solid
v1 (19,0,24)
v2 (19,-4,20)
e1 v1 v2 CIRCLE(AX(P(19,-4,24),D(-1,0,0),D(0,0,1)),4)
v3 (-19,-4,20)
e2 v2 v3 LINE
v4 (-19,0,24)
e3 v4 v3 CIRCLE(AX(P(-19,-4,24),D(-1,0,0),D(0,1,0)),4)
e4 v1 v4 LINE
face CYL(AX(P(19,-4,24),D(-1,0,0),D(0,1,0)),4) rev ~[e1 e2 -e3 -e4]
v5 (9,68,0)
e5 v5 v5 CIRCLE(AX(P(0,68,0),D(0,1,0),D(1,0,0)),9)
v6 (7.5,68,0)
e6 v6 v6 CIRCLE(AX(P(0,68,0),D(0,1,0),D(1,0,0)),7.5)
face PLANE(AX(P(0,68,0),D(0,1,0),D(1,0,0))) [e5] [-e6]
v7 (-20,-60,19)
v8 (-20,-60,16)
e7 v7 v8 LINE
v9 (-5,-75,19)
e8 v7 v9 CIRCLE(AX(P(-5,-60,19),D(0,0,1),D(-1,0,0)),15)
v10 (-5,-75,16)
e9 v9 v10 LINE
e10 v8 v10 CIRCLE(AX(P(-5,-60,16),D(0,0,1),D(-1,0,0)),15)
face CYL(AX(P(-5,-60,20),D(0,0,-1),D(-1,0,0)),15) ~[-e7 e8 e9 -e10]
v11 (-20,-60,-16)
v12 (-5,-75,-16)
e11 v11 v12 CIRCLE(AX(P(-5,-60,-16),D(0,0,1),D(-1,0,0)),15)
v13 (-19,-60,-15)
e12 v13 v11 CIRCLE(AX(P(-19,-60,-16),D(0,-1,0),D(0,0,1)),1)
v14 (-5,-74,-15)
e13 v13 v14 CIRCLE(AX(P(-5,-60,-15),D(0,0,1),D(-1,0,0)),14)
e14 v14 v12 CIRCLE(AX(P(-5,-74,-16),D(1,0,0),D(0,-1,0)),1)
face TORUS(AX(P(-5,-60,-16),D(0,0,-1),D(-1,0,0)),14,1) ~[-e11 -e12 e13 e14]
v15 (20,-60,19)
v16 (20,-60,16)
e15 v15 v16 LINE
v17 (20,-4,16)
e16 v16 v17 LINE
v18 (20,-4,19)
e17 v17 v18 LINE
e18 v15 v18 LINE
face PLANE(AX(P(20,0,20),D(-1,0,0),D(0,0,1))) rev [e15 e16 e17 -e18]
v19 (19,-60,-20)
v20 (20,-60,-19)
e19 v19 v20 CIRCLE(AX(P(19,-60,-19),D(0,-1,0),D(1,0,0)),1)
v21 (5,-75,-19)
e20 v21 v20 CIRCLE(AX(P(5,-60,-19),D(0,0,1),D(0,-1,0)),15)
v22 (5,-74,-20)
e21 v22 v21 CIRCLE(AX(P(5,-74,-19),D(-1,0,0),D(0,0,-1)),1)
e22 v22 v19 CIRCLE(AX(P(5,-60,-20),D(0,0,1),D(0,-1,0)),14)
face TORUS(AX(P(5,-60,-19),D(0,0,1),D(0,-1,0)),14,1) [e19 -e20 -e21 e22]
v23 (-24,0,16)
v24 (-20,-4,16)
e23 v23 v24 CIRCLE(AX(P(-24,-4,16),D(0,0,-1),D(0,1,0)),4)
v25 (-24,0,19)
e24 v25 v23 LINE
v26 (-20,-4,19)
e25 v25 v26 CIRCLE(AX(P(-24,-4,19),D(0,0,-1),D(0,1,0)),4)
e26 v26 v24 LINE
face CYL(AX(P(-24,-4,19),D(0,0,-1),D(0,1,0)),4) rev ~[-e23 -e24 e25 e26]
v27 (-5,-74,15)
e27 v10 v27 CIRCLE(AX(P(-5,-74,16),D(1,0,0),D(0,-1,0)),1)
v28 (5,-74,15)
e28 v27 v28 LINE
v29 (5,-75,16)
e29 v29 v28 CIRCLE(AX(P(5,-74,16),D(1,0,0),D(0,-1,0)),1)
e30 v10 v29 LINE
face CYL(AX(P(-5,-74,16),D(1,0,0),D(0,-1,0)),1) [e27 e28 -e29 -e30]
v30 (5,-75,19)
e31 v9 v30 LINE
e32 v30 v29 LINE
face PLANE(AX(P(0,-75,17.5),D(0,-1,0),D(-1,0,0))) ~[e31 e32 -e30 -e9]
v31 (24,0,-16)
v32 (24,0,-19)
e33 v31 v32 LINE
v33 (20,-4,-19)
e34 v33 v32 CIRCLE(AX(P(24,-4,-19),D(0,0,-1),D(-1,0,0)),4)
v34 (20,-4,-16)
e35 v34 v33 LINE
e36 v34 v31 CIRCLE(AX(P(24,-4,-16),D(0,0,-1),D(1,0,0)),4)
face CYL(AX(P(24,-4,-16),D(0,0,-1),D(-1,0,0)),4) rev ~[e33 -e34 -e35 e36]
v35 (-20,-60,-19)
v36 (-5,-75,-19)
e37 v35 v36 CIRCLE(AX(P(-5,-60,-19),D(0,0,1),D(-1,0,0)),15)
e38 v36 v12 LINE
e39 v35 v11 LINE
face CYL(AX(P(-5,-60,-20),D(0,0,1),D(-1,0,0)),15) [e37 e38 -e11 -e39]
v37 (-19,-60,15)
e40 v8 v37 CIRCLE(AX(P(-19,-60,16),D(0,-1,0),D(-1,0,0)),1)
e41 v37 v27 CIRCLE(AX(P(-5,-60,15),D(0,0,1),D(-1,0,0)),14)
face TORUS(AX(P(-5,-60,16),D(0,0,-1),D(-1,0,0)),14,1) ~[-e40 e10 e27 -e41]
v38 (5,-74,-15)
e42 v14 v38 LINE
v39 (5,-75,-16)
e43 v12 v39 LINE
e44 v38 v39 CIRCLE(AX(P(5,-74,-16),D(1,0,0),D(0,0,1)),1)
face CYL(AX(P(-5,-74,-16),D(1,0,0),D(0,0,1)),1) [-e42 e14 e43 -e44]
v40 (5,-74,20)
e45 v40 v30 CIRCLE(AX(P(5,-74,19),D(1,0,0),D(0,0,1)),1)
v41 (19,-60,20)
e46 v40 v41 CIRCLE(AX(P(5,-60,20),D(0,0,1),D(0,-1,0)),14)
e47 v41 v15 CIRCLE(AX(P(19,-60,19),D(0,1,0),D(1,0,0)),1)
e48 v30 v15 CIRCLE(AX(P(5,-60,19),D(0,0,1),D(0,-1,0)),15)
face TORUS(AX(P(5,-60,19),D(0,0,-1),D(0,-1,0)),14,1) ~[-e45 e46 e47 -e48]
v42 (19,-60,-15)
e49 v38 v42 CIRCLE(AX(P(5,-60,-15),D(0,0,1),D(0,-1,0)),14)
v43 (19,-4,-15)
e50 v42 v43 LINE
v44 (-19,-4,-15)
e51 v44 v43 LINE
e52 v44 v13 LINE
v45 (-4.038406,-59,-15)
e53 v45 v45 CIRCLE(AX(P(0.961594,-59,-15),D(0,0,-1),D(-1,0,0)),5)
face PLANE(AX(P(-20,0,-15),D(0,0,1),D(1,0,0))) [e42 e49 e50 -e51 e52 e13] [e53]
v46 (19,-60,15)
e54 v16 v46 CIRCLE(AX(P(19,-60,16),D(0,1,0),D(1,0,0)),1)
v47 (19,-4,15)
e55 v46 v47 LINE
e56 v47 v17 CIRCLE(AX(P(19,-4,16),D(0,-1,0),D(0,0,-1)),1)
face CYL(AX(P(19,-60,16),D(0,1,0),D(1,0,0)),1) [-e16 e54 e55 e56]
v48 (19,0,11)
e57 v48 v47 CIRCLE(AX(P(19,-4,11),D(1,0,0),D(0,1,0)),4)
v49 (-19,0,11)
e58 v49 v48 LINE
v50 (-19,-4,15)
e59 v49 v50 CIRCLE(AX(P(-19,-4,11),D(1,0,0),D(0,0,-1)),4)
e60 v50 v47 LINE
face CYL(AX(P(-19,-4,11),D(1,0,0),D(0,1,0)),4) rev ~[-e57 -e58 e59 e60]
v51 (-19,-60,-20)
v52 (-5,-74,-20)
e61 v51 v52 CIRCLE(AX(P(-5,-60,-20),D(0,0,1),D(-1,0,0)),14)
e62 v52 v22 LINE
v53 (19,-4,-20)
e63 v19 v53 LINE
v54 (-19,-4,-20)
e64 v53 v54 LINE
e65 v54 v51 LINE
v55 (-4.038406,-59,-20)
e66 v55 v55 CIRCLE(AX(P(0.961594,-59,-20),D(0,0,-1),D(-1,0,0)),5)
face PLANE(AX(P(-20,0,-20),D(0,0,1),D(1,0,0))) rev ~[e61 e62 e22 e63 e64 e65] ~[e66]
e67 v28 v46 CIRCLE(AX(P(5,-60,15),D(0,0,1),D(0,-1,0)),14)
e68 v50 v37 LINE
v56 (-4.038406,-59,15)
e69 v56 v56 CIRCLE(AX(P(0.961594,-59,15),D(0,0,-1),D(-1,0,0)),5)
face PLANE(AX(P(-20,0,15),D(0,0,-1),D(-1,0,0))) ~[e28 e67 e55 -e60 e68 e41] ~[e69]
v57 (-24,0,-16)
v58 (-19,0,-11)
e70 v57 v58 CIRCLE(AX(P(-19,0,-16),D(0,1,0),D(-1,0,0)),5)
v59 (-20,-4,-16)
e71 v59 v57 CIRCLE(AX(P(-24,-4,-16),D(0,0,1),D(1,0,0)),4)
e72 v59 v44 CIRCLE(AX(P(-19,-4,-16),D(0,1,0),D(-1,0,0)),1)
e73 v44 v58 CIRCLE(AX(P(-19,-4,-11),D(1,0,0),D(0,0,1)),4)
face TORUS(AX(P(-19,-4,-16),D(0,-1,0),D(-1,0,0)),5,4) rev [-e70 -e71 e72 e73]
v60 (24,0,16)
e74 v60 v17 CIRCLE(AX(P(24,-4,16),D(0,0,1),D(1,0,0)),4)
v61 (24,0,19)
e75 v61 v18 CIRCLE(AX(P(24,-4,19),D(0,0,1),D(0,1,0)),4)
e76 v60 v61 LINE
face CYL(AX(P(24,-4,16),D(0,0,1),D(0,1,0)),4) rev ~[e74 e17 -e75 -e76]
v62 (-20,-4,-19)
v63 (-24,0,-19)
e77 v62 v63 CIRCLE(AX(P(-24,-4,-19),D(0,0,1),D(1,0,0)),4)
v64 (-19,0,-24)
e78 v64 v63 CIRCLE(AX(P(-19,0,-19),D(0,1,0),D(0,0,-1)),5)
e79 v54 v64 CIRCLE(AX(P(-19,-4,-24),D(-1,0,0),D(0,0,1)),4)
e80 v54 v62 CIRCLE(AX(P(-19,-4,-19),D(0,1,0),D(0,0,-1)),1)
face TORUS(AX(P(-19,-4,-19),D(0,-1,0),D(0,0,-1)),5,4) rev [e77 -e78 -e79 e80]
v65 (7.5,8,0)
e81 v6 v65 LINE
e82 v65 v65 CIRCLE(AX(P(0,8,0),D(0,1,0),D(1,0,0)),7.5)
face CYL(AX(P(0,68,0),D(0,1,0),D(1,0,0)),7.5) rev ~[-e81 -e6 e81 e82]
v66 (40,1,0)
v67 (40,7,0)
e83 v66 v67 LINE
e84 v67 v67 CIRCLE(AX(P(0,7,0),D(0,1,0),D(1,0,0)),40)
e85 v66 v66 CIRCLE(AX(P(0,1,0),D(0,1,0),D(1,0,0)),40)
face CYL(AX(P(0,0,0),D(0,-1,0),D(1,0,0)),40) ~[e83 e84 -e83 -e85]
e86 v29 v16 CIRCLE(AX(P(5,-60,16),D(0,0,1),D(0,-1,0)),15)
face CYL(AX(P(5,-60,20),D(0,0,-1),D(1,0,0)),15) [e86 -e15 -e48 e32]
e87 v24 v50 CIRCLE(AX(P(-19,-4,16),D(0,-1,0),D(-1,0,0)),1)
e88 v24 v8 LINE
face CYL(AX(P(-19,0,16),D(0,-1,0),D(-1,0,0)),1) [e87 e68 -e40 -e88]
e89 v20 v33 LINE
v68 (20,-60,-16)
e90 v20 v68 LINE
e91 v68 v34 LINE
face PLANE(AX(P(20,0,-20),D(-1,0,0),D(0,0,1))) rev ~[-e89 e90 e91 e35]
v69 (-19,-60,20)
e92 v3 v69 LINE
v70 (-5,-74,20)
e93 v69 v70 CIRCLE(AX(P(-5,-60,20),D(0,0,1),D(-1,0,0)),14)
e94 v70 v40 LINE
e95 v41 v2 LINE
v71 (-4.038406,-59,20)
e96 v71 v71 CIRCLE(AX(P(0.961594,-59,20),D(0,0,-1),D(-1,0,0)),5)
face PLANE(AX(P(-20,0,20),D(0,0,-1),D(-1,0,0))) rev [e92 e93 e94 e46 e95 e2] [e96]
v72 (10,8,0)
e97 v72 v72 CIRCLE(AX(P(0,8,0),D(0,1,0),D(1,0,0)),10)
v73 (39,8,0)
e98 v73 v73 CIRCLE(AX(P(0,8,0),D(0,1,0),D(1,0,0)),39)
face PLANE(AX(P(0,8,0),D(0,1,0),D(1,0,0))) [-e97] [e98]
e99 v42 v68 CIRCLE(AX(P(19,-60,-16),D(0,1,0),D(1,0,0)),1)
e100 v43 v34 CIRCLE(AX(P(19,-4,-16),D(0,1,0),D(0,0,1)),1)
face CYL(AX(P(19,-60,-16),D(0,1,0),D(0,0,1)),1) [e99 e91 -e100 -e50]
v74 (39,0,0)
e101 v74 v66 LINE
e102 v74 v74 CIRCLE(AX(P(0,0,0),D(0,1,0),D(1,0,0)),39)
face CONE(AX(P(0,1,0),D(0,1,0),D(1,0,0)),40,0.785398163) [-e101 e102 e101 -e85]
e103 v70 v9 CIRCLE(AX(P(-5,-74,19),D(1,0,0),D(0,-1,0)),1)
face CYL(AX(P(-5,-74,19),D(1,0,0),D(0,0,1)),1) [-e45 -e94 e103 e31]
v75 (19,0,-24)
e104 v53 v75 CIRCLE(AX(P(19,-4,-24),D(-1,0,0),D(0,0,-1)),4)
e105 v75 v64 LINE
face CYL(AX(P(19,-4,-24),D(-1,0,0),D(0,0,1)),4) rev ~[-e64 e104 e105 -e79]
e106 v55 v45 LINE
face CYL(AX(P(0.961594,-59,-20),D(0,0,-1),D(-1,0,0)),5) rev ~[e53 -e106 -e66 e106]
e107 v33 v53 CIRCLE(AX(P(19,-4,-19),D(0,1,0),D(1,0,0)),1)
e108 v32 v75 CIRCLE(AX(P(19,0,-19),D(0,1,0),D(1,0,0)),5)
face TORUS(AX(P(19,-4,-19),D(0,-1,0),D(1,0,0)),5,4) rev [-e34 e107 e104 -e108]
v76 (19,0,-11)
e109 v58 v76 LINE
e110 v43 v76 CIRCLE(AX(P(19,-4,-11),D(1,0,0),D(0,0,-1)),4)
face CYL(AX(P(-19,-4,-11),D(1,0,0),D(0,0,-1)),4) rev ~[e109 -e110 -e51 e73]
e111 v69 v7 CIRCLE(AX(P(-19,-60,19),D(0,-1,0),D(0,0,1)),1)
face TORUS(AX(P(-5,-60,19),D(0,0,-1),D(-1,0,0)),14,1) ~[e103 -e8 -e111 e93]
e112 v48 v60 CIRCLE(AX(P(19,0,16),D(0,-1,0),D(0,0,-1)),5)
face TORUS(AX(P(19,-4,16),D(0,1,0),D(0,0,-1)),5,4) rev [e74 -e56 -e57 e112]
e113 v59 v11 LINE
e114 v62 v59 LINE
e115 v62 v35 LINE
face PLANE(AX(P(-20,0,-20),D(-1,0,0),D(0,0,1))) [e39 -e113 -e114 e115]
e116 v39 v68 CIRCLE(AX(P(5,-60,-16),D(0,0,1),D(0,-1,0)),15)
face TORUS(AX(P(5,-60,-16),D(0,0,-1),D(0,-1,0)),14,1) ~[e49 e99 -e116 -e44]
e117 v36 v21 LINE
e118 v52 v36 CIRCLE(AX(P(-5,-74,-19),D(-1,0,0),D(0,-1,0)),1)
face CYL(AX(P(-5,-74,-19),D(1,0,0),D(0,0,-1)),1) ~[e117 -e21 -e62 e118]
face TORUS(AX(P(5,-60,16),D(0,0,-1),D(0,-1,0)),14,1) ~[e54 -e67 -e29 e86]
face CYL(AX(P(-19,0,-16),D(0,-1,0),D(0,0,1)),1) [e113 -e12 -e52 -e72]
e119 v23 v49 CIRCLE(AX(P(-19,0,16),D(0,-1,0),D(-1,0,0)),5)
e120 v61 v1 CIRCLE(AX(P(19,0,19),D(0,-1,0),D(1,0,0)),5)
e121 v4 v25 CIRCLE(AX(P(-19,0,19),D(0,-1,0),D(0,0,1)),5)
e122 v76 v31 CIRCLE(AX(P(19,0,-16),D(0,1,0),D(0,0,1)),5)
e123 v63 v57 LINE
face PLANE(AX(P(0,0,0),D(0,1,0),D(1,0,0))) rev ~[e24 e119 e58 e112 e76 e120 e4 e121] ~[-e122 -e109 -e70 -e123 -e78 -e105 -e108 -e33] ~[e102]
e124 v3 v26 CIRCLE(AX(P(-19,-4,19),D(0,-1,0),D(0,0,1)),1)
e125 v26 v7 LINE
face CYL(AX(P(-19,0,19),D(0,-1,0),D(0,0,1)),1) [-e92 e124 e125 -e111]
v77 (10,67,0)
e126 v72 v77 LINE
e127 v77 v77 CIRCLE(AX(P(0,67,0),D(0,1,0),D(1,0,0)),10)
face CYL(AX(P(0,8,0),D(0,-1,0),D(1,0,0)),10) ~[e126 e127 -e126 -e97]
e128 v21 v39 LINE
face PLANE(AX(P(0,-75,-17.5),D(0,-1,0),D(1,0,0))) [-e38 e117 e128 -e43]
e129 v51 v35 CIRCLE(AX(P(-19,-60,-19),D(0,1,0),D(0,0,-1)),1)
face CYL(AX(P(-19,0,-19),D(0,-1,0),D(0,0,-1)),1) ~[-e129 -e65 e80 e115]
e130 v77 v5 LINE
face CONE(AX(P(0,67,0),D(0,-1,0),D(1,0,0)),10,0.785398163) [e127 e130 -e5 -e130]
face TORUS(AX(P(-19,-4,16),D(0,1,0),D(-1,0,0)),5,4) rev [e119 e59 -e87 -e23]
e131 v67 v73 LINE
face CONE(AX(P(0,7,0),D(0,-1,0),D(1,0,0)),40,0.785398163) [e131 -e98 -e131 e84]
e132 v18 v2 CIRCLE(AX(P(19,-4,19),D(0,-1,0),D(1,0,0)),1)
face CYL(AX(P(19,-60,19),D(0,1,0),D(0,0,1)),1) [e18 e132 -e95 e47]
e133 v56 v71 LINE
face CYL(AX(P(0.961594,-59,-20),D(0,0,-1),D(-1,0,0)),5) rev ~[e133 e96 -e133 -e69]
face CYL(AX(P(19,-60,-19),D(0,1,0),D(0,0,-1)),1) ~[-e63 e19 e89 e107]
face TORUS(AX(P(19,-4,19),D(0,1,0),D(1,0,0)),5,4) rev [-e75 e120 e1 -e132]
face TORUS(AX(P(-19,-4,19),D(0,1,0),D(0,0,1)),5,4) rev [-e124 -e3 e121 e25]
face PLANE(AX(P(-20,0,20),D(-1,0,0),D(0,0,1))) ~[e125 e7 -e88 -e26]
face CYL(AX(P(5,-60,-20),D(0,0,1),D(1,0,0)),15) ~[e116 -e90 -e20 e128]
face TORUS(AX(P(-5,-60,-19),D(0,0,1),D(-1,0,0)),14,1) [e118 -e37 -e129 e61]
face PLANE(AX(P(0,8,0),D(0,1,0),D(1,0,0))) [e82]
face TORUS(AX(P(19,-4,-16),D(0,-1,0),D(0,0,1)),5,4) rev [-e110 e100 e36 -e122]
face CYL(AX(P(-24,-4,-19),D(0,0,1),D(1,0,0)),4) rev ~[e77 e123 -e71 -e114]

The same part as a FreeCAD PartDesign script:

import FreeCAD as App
import Part
import Sketcher
from FreeCAD import Vector


def edges_at(feature, points):
    """Names of the edges that pass closest to the given points."""
    edges = feature.Shape.Edges
    near = lambda p: min(range(len(edges)), key=lambda i: edges[i].distToShape(Part.Vertex(*p))[0])
    return sorted({f"Edge{near(p) + 1}" for p in points})


def add_polygon(sketch, points):
    """Adds a closed chain of lines whose ends are joined by coincident constraints."""
    first, n = sketch.GeometryCount, len(points)
    for a, b in zip(points, points[1:] + points[:1]):
        sketch.addGeometry(Part.LineSegment(App.Vector(*a, 0), App.Vector(*b, 0)), False)
    for i in range(n):
        sketch.addConstraint(Sketcher.Constraint("Coincident", first + i, 2, first + (i + 1) % n, 1))

doc = App.newDocument("Part")
body = doc.addObject("PartDesign::Body", "Body")

# Sketch on XZ plane
sketch1 = body.newObject("Sketcher::SketchObject", "Sketch")
sketch1.AttachmentSupport = (doc.getObject("XZ_Plane"), [""])
sketch1.MapMode = "FlatFace"
sketch1.addGeometry(Part.Circle(Vector(0, 0, 0), Vector(0, 0, 1), 40), False)
sketch1.addConstraint([
    Sketcher.Constraint("Coincident", 0, 3, -1, 1),
    Sketcher.Constraint("Diameter", 0, 80.0),
])
pad1 = body.newObject("PartDesign::Pad", "Pad")
pad1.Profile = sketch1
pad1.Length = 8
pad1.Reversed = True

# Sketch on XZ plane
sketch2 = body.newObject("Sketcher::SketchObject", "Sketch001")
sketch2.AttachmentSupport = (doc.getObject("XZ_Plane"), [""])
sketch2.MapMode = "FlatFace"
add_polygon(sketch2, [(-20, -15), (-20, -20), (20, -20), (20, -15)])  # lines 0-3
sketch2.addConstraint([
    Sketcher.Constraint("Vertical", 0),
    Sketcher.Constraint("Horizontal", 1),
    Sketcher.Constraint("Vertical", 2),
    Sketcher.Constraint("Horizontal", 3),
    Sketcher.Constraint("DistanceX", 1, 1, 1, 2, 40.0),
    Sketcher.Constraint("DistanceY", 0, 2, 0, 1, 5.0),
    Sketcher.Constraint("DistanceX", 0, 2, -1, 1, 20.0),
    Sketcher.Constraint("DistanceY", 0, 2, -1, 1, 20.0),
])
pad2 = body.newObject("PartDesign::Pad", "Pad001")
pad2.Profile = sketch2
pad2.Length = 75
doc.recompute()

fillet = body.newObject("PartDesign::Fillet", "Fillet")
fillet.Base = (pad2, edges_at(pad2, [(-20, -75, -17.5), (20, -75, -17.5)]))
fillet.Radius = 15
doc.recompute()

fillet2 = body.newObject("PartDesign::Fillet", "Fillet001")
fillet2.Base = (fillet, edges_at(fillet, [
    (0, -75, -20),
    (0, -75, -15),
    (20, -30, -20),
    (-20, -30, -20),
    (15.607, -70.607, -20),
    (-15.607, -70.607, -20),
    (-20, -30, -15),
    (20, -30, -15),
    (15.607, -70.607, -15),
    (-15.607, -70.607, -15),
]))
fillet2.Radius = 1
doc.recompute()

fillet3 = body.newObject("PartDesign::Fillet", "Fillet002")
fillet3.Base = (fillet2, edges_at(fillet2, [
    (-20, 0, -17.5),
    (0, 0, -15),
    (20, 0, -17.5),
    (0, 0, -20),
    (-19.707, 0, -15.293),
    (19.707, 0, -15.293),
    (19.707, 0, -19.707),
    (-19.707, 0, -19.707),
]))
fillet3.Radius = 4
doc.recompute()

mirrored = body.newObject("PartDesign::Mirrored", "Mirrored")
mirrored.Originals = [pad2]
mirrored.MirrorPlane = (doc.getObject("XY_Plane"), [""])
body.Tip = mirrored
doc.recompute()

fillet4 = body.newObject("PartDesign::Fillet", "Fillet003")
fillet4.Base = (mirrored, edges_at(mirrored, [(-20, -75, 17.5), (20, -75, 17.5)]))
fillet4.Radius = 15
doc.recompute()

fillet5 = body.newObject("PartDesign::Fillet", "Fillet004")
fillet5.Base = (fillet4, edges_at(fillet4, [
    (0, -75, 20),
    (0, -75, 15),
    (20, -30, 20),
    (-20, -30, 20),
    (15.607, -70.607, 20),
    (-15.607, -70.607, 20),
    (-20, -30, 15),
    (20, -30, 15),
    (15.607, -70.607, 15),
    (-15.607, -70.607, 15),
]))
fillet5.Radius = 1
doc.recompute()

fillet6 = body.newObject("PartDesign::Fillet", "Fillet005")
fillet6.Base = (fillet5, edges_at(fillet5, [
    (-20, 0, 17.5),
    (0, 0, 15),
    (20, 0, 17.5),
    (0, 0, 20),
    (-19.707, 0, 15.293),
    (19.707, 0, 15.293),
    (19.707, 0, 19.707),
    (-19.707, 0, 19.707),
]))
fillet6.Radius = 4

# Sketch on XY plane
sketch3 = body.newObject("Sketcher::SketchObject", "Sketch002")
sketch3.AttachmentSupport = (doc.getObject("XY_Plane"), [""])
sketch3.MapMode = "FlatFace"
sketch3.AttachmentOffset = App.Placement(Vector(0, 0, -20), App.Rotation())
sketch3.addGeometry(Part.Circle(Vector(1, -59, 0), Vector(0, 0, 1), 5), False)
sketch3.addConstraint([
    Sketcher.Constraint("Diameter", 0, 10.0),
    Sketcher.Constraint("DistanceY", 0, 3, -1, 1, 59.0),
    Sketcher.Constraint("DistanceX", -1, 1, 0, 3, 0.961594),
])
pocket1 = body.newObject("PartDesign::Pocket", "Pocket")
pocket1.Profile = sketch3
pocket1.Length = 40
pocket1.Reversed = True

# Sketch on XZ plane
sketch4 = body.newObject("Sketcher::SketchObject", "Sketch003")
sketch4.AttachmentSupport = (doc.getObject("XZ_Plane"), [""])
sketch4.MapMode = "FlatFace"
sketch4.AttachmentOffset = App.Placement(Vector(0, 0, -8), App.Rotation())
sketch4.addGeometry(Part.Circle(Vector(0, 0, 0), Vector(0, 0, 1), 10), False)
sketch4.addConstraint([
    Sketcher.Constraint("Coincident", 0, 3, -1, 1),
    Sketcher.Constraint("Diameter", 0, 20.0),
])
pad3 = body.newObject("PartDesign::Pad", "Pad002")
pad3.Profile = sketch4
pad3.Length = 60
pad3.Reversed = True

# Sketch on XZ plane
sketch5 = body.newObject("Sketcher::SketchObject", "Sketch004")
sketch5.AttachmentSupport = (doc.getObject("XZ_Plane"), [""])
sketch5.MapMode = "FlatFace"
sketch5.AttachmentOffset = App.Placement(Vector(0, 0, -68), App.Rotation())
sketch5.addGeometry(Part.Circle(Vector(0, 0, 0), Vector(0, 0, 1), 8), False)
sketch5.addConstraint([
    Sketcher.Constraint("Coincident", 0, 3, -1, 1),
    Sketcher.Constraint("Diameter", 0, 15.0),
])
pocket2 = body.newObject("PartDesign::Pocket", "Pocket001")
pocket2.Profile = sketch5
pocket2.Length = 60
pocket2.Reversed = True
doc.recompute()

chamfer = body.newObject("PartDesign::Chamfer", "Chamfer")
chamfer.Base = (pocket2, edges_at(pocket2, [(-10, 68, 0), (-40, 0, 0), (-40, 8, 0)]))
chamfer.Size = 1

doc.recompute()
